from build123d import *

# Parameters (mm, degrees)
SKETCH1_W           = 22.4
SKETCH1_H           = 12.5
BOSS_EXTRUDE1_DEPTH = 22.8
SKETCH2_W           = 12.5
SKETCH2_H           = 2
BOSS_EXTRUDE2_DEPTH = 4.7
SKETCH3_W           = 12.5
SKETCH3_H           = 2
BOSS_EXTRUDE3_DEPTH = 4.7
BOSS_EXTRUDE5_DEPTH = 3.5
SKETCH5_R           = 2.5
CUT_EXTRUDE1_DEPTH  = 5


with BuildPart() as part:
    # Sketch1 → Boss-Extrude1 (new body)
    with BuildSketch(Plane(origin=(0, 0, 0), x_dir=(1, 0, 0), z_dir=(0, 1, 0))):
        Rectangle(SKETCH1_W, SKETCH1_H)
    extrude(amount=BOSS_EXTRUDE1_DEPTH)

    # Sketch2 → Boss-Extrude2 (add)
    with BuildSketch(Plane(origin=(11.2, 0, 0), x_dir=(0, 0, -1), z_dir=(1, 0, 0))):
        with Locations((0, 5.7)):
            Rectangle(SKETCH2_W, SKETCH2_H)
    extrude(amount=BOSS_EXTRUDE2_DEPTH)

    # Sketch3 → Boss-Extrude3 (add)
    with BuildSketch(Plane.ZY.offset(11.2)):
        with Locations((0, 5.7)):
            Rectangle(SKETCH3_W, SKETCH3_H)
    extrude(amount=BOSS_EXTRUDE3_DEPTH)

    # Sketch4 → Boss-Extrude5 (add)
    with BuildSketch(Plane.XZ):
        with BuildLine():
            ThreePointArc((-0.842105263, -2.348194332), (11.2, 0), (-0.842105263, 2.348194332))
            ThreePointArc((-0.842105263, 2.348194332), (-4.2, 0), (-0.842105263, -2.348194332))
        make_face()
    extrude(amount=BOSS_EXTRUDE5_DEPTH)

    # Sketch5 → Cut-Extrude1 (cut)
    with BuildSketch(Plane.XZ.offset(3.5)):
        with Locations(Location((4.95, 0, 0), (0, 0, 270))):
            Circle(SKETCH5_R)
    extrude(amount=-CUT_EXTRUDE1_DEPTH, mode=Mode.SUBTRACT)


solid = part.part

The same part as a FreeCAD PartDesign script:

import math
import FreeCAD as App
import Part
import Sketcher

V = App.Vector
Q = App.Units.Quantity


def add_polygon(sketch, points):
    """Adds a closed chain of lines whose ends are joined by coincident constraints."""
    first, n = sketch.GeometryCount, len(points)
    for a, b in zip(points, points[1:] + points[:1]):
        sketch.addGeometry(Part.LineSegment(App.Vector(*a, 0), App.Vector(*b, 0)), False)
    for i in range(n):
        sketch.addConstraint(Sketcher.Constraint("Coincident", first + i, 2, first + (i + 1) % n, 1))

doc = App.newDocument("Part")
body = doc.addObject("PartDesign::Body", "Body")

# Sketch on XZ plane
sketch1 = doc.addObject("Sketcher::SketchObject", "Sketch")
body.addObject(sketch1)
sketch1.AttachmentSupport = (doc.XZ_Plane, [""])
sketch1.MapMode = "FlatFace"
add_polygon(sketch1, [(-11, -6), (-11, 6), (11, 6), (11, -6)])  # lines 0-3
sketch1.addConstraint([
    Sketcher.Constraint("Vertical", 0),
    Sketcher.Constraint("Horizontal", 1),
    Sketcher.Constraint("Vertical", 2),
    Sketcher.Constraint("Horizontal", 3),
    Sketcher.Constraint("Symmetric", 0, 2, 2, 2, -1, 1),
    Sketcher.Constraint("DistanceX", 1, 1, 1, 2, Q("22.4 mm")),
    Sketcher.Constraint("DistanceY", 0, 1, 0, 2, Q("12.5 mm")),
])
pad1 = doc.addObject("PartDesign::Pad", "Pad")
body.addObject(pad1)
pad1.Profile = sketch1
pad1.Length = 22.8
pad1.Reversed = True

# Sketch on YZ plane
sketch2 = doc.addObject("Sketcher::SketchObject", "Sketch001")
body.addObject(sketch2)
sketch2.AttachmentSupport = (doc.YZ_Plane, [""])
sketch2.MapMode = "FlatFace"
sketch2.AttachmentOffset = App.Placement(V(0, 0, 11.2), App.Rotation())
add_polygon(sketch2, [(6.7, 6.2), (4.7, 6.2), (4.7, -6.2), (6.7, -6.2)])  # lines 0-3
sketch2.addConstraint([
    Sketcher.Constraint("Horizontal", 0),
    Sketcher.Constraint("Vertical", 1),
    Sketcher.Constraint("Horizontal", 2),
    Sketcher.Constraint("Vertical", 3),
    Sketcher.Constraint("DistanceX", 0, 2, 0, 1, Q("2 mm")),
    Sketcher.Constraint("DistanceY", 1, 2, 1, 1, Q("12.5 mm")),
    Sketcher.Constraint("DistanceX", -1, 1, 0, 2, Q("4.7 mm")),
    Sketcher.Constraint("DistanceY", -1, 1, 0, 2, Q("6.25 mm")),
])
pad2 = doc.addObject("PartDesign::Pad", "Pad001")
body.addObject(pad2)
pad2.Profile = sketch2
pad2.Length = 4.7

# Sketch on YZ plane
sketch3 = doc.addObject("Sketcher::SketchObject", "Sketch002")
body.addObject(sketch3)
sketch3.AttachmentSupport = (doc.YZ_Plane, [""])
sketch3.MapMode = "FlatFace"
sketch3.AttachmentOffset = App.Placement(V(0, 0, -11.2), App.Rotation())
add_polygon(sketch3, [(6.7, -6.2), (4.7, -6.2), (4.7, 6.2), (6.7, 6.2)])  # lines 0-3
sketch3.addConstraint([
    Sketcher.Constraint("Horizontal", 0),
    Sketcher.Constraint("Vertical", 1),
    Sketcher.Constraint("Horizontal", 2),
    Sketcher.Constraint("Vertical", 3),
    Sketcher.Constraint("DistanceX", 0, 2, 0, 1, Q("2 mm")),
    Sketcher.Constraint("DistanceY", 1, 1, 1, 2, Q("12.5 mm")),
    Sketcher.Constraint("DistanceX", -1, 1, 0, 2, Q("4.7 mm")),
    Sketcher.Constraint("DistanceY", 0, 2, -1, 1, Q("6.25 mm")),
])
pad3 = doc.addObject("PartDesign::Pad", "Pad002")
body.addObject(pad3)
pad3.Profile = sketch3
pad3.Length = 4.7
pad3.Reversed = True

# Sketch on XZ plane
sketch4 = doc.addObject("Sketcher::SketchObject", "Sketch003")
body.addObject(sketch4)
sketch4.AttachmentSupport = (doc.XZ_Plane, [""])
sketch4.MapMode = "FlatFace"
sketch4.addGeometry([
    Part.ArcOfCircle(Part.Circle(V(5, 0, 0), V(0, 0, 1), 6.2), math.radians(-158), math.radians(158)),
    Part.ArcOfCircle(Part.Circle(V(-1.7, 0, 0), V(0, 0, 1), 2.5), math.radians(70), math.radians(290)),
], False)
sketch4.addConstraint([
    Sketcher.Constraint("Coincident", 0, 1, 1, 2),
    Sketcher.Constraint("Coincident", 1, 1, 0, 2),
    Sketcher.Constraint("Symmetric", 0, 1, 1, 1, -1),
    Sketcher.Constraint("Radius", 1, Q("2.5 mm")),
    Sketcher.Constraint("Radius", 0, Q("6.25 mm")),
    Sketcher.Constraint("DistanceX", 1, 3, -1, 1, Q("1.7 mm")),
    Sketcher.Constraint("DistanceX", -1, 1, 0, 3, Q("4.95 mm")),
])
pad4 = doc.addObject("PartDesign::Pad", "Pad003")
body.addObject(pad4)
pad4.Profile = sketch4
pad4.Length = 3.5

# Sketch on XZ plane
sketch5 = doc.addObject("Sketcher::SketchObject", "Sketch004")
body.addObject(sketch5)
sketch5.AttachmentSupport = (doc.XZ_Plane, [""])
sketch5.MapMode = "FlatFace"
sketch5.AttachmentOffset = App.Placement(V(0, 0, 3.5), App.Rotation())
sketch5.addGeometry(Part.Circle(V(5, 0, 0), V(0, 0, 1), 2.5), False)
sketch5.addConstraint([
    Sketcher.Constraint("PointOnObject", 0, 3, -1),
    Sketcher.Constraint("Diameter", 0, Q("5 mm")),
    Sketcher.Constraint("DistanceX", -1, 1, 0, 3, Q("4.95 mm")),
])
pocket1 = doc.addObject("PartDesign::Pocket", "Pocket")
body.addObject(pocket1)
pocket1.Profile = sketch5
pocket1.Length = 5

doc.recompute()
